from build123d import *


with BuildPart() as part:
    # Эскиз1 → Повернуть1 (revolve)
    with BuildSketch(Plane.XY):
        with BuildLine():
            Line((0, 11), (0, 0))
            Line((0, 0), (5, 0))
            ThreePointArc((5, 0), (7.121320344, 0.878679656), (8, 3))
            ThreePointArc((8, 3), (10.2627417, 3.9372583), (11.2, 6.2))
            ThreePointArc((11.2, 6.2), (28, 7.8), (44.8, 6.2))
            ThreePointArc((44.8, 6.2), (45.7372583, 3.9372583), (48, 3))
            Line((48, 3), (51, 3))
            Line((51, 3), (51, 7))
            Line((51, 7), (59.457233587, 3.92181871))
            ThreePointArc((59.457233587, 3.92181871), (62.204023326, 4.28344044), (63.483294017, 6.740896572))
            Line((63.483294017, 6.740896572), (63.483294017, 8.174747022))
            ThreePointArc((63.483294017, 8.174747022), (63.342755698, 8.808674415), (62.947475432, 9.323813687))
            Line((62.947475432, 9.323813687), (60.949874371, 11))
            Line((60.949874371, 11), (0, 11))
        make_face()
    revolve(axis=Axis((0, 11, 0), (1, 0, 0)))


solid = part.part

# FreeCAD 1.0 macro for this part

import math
import FreeCAD as App
import Part
import Sketcher

V = App.Vector
Q = App.Units.Quantity

doc = App.newDocument("Part")
body = doc.addObject("PartDesign::Body", "Body")

sketch1 = body.newObject("Sketcher::SketchObject", "Sketch")
sketch1.AttachmentSupport = (doc.getObject("XY_Plane"), [""])
sketch1.MapMode = "FlatFace"
sketch1.addGeometry(Part.LineSegment(V(0, 11, 0), V(0, 0, 0)), False)
sketch1.addGeometry(Part.LineSegment(V(0, 0, 0), V(5, 0, 0)), False)
sketch1.addGeometry(Part.ArcOfCircle(Part.Circle(V(5, 3, 0), V(0, 0, 1), 3), math.radians(-90), math.radians(0)), False)
sketch1.addGeometry(Part.ArcOfCircle(Part.Circle(V(8, 6.2, 0), V(0, 0, 1), 3.2), math.radians(-90), math.radians(0)), False)
sketch1.addGeometry(Part.ArcOfCircle(Part.Circle(V(28, -81.2, 0), V(0, 0, 1), 89), math.radians(79), math.radians(101)), False)
sketch1.addGeometry(Part.ArcOfCircle(Part.Circle(V(48, 6.2, 0), V(0, 0, 1), 3.2), math.radians(180), math.radians(270)), False)
sketch1.addGeometry(Part.LineSegment(V(48, 3, 0), V(51, 3, 0)), False)
sketch1.addGeometry(Part.LineSegment(V(51, 3, 0), V(51, 7, 0)), False)
sketch1.addGeometry(Part.LineSegment(V(51, 7, 0), V(59.5, 3.9, 0)), False)
sketch1.addGeometry(Part.ArcOfCircle(Part.Circle(V(60.5, 6.7, 0), V(0, 0, 1), 3), math.radians(-110), math.radians(0)), False)
sketch1.addGeometry(Part.LineSegment(V(63.5, 6.7, 0), V(63.5, 8.2, 0)), False)
sketch1.addGeometry(Part.ArcOfCircle(Part.Circle(V(62, 8.2, 0), V(0, 0, 1), 1.5), math.radians(0), math.radians(50)), False)
sketch1.addGeometry(Part.LineSegment(V(62.9, 9.3, 0), V(60.9, 11, 0)), False)
sketch1.addGeometry(Part.LineSegment(V(60.9, 11, 0), V(0, 11, 0)), False)
sketch1.addGeometry(Part.LineSegment(V(0, 11, 0), V(63.5, 11, 0)), True)
sketch1.addConstraint(Sketcher.Constraint("Coincident", 0, 2, 1, 1))
sketch1.addConstraint(Sketcher.Constraint("Tangent", 1, 2, 2, 1))
sketch1.addConstraint(Sketcher.Constraint("Coincident", 2, 2, 3, 1))
sketch1.addConstraint(Sketcher.Constraint("Coincident", 3, 2, 4, 2))
sketch1.addConstraint(Sketcher.Constraint("Coincident", 4, 1, 5, 1))
sketch1.addConstraint(Sketcher.Constraint("Tangent", 5, 2, 6, 1))
sketch1.addConstraint(Sketcher.Constraint("Coincident", 6, 2, 7, 1))
sketch1.addConstraint(Sketcher.Constraint("Coincident", 7, 2, 8, 1))
sketch1.addConstraint(Sketcher.Constraint("Tangent", 8, 2, 9, 1))
sketch1.addConstraint(Sketcher.Constraint("Tangent", 9, 2, 10, 1))
sketch1.addConstraint(Sketcher.Constraint("Tangent", 10, 2, 11, 1))
sketch1.addConstraint(Sketcher.Constraint("Tangent", 11, 2, 12, 1))
sketch1.addConstraint(Sketcher.Constraint("Coincident", 12, 2, 13, 1))
sketch1.addConstraint(Sketcher.Constraint("Coincident", 13, 2, 0, 1))
sketch1.addConstraint(Sketcher.Constraint("Vertical", 0))
sketch1.addConstraint(Sketcher.Constraint("Horizontal", 1))
sketch1.addConstraint(Sketcher.Constraint("Horizontal", 6))
sketch1.addConstraint(Sketcher.Constraint("Vertical", 7))
sketch1.addConstraint(Sketcher.Constraint("Vertical", 10))
sketch1.addConstraint(Sketcher.Constraint("Horizontal", 13))
sketch1.addConstraint(Sketcher.Constraint("Horizontal", 14))
sketch1.addConstraint(Sketcher.Constraint("Coincident", 0, 2, -1, 1))
sketch1.addConstraint(Sketcher.Constraint("Coincident", 14, 1, 13, 2))
sketch1.addConstraint(Sketcher.Constraint("Equal", 3, 5))
sketch1.addConstraint(Sketcher.Constraint("Equal", 2, 9))
sketch1.addConstraint(Sketcher.Constraint("Horizontal", 3, 3, 5, 3))
sketch1.addConstraint(Sketcher.Constraint("Horizontal", 5, 3, 3, 2))
sketch1.addConstraint(Sketcher.Constraint("Horizontal", 3, 2, 4, 1))
sketch1.addConstraint(Sketcher.Constraint("Vertical", 3, 3, 2, 2))
sketch1.addConstraint(Sketcher.Constraint("Vertical", 10, 2, 14, 2))
sketch1.addConstraint(Sketcher.Constraint("Radius", 2, Q("3 mm")))
sketch1.addConstraint(Sketcher.Constraint("Radius", 4, Q("89 mm")))
sketch1.addConstraint(Sketcher.Constraint("Radius", 3, Q("3.2 mm")))
sketch1.addConstraint(Sketcher.Constraint("Radius", 11, Q("1.5 mm")))
sketch1.addConstraint(Sketcher.Constraint("DistanceX", 1, 1, 1, 2, Q("5 mm")))
sketch1.addConstraint(Sketcher.Constraint("DistanceX", 6, 1, 6, 2, Q("3 mm")))
sketch1.addConstraint(Sketcher.Constraint("DistanceY", 0, 2, 0, 1, Q("11 mm")))
sketch1.addConstraint(Sketcher.Constraint("DistanceY", 7, 1, 7, 2, Q("4 mm")))
sketch1.addConstraint(Sketcher.Constraint("Angle", 8, Q("-20 deg")))
sketch1.addConstraint(Sketcher.Constraint("Angle", 12, Q("140 deg")))
sketch1.addConstraint(Sketcher.Constraint("Distance", 8, Q("9 mm")))
sketch1.addConstraint(Sketcher.Constraint("DistanceX", -1, 1, 4, 3, Q("28 mm")))
sketch1.addConstraint(Sketcher.Constraint("DistanceY", -1, 1, 2, 2, Q("3 mm")))
sketch1.addConstraint(Sketcher.Constraint("DistanceY", 10, 1, 10, 2, Q("1.43385 mm")))
revolution = body.newObject("PartDesign::Revolution", "Revolution")
revolution.Profile = sketch1
revolution.ReferenceAxis = (sketch1, ["Axis0"])
revolution.Angle = 360

doc.recompute()
